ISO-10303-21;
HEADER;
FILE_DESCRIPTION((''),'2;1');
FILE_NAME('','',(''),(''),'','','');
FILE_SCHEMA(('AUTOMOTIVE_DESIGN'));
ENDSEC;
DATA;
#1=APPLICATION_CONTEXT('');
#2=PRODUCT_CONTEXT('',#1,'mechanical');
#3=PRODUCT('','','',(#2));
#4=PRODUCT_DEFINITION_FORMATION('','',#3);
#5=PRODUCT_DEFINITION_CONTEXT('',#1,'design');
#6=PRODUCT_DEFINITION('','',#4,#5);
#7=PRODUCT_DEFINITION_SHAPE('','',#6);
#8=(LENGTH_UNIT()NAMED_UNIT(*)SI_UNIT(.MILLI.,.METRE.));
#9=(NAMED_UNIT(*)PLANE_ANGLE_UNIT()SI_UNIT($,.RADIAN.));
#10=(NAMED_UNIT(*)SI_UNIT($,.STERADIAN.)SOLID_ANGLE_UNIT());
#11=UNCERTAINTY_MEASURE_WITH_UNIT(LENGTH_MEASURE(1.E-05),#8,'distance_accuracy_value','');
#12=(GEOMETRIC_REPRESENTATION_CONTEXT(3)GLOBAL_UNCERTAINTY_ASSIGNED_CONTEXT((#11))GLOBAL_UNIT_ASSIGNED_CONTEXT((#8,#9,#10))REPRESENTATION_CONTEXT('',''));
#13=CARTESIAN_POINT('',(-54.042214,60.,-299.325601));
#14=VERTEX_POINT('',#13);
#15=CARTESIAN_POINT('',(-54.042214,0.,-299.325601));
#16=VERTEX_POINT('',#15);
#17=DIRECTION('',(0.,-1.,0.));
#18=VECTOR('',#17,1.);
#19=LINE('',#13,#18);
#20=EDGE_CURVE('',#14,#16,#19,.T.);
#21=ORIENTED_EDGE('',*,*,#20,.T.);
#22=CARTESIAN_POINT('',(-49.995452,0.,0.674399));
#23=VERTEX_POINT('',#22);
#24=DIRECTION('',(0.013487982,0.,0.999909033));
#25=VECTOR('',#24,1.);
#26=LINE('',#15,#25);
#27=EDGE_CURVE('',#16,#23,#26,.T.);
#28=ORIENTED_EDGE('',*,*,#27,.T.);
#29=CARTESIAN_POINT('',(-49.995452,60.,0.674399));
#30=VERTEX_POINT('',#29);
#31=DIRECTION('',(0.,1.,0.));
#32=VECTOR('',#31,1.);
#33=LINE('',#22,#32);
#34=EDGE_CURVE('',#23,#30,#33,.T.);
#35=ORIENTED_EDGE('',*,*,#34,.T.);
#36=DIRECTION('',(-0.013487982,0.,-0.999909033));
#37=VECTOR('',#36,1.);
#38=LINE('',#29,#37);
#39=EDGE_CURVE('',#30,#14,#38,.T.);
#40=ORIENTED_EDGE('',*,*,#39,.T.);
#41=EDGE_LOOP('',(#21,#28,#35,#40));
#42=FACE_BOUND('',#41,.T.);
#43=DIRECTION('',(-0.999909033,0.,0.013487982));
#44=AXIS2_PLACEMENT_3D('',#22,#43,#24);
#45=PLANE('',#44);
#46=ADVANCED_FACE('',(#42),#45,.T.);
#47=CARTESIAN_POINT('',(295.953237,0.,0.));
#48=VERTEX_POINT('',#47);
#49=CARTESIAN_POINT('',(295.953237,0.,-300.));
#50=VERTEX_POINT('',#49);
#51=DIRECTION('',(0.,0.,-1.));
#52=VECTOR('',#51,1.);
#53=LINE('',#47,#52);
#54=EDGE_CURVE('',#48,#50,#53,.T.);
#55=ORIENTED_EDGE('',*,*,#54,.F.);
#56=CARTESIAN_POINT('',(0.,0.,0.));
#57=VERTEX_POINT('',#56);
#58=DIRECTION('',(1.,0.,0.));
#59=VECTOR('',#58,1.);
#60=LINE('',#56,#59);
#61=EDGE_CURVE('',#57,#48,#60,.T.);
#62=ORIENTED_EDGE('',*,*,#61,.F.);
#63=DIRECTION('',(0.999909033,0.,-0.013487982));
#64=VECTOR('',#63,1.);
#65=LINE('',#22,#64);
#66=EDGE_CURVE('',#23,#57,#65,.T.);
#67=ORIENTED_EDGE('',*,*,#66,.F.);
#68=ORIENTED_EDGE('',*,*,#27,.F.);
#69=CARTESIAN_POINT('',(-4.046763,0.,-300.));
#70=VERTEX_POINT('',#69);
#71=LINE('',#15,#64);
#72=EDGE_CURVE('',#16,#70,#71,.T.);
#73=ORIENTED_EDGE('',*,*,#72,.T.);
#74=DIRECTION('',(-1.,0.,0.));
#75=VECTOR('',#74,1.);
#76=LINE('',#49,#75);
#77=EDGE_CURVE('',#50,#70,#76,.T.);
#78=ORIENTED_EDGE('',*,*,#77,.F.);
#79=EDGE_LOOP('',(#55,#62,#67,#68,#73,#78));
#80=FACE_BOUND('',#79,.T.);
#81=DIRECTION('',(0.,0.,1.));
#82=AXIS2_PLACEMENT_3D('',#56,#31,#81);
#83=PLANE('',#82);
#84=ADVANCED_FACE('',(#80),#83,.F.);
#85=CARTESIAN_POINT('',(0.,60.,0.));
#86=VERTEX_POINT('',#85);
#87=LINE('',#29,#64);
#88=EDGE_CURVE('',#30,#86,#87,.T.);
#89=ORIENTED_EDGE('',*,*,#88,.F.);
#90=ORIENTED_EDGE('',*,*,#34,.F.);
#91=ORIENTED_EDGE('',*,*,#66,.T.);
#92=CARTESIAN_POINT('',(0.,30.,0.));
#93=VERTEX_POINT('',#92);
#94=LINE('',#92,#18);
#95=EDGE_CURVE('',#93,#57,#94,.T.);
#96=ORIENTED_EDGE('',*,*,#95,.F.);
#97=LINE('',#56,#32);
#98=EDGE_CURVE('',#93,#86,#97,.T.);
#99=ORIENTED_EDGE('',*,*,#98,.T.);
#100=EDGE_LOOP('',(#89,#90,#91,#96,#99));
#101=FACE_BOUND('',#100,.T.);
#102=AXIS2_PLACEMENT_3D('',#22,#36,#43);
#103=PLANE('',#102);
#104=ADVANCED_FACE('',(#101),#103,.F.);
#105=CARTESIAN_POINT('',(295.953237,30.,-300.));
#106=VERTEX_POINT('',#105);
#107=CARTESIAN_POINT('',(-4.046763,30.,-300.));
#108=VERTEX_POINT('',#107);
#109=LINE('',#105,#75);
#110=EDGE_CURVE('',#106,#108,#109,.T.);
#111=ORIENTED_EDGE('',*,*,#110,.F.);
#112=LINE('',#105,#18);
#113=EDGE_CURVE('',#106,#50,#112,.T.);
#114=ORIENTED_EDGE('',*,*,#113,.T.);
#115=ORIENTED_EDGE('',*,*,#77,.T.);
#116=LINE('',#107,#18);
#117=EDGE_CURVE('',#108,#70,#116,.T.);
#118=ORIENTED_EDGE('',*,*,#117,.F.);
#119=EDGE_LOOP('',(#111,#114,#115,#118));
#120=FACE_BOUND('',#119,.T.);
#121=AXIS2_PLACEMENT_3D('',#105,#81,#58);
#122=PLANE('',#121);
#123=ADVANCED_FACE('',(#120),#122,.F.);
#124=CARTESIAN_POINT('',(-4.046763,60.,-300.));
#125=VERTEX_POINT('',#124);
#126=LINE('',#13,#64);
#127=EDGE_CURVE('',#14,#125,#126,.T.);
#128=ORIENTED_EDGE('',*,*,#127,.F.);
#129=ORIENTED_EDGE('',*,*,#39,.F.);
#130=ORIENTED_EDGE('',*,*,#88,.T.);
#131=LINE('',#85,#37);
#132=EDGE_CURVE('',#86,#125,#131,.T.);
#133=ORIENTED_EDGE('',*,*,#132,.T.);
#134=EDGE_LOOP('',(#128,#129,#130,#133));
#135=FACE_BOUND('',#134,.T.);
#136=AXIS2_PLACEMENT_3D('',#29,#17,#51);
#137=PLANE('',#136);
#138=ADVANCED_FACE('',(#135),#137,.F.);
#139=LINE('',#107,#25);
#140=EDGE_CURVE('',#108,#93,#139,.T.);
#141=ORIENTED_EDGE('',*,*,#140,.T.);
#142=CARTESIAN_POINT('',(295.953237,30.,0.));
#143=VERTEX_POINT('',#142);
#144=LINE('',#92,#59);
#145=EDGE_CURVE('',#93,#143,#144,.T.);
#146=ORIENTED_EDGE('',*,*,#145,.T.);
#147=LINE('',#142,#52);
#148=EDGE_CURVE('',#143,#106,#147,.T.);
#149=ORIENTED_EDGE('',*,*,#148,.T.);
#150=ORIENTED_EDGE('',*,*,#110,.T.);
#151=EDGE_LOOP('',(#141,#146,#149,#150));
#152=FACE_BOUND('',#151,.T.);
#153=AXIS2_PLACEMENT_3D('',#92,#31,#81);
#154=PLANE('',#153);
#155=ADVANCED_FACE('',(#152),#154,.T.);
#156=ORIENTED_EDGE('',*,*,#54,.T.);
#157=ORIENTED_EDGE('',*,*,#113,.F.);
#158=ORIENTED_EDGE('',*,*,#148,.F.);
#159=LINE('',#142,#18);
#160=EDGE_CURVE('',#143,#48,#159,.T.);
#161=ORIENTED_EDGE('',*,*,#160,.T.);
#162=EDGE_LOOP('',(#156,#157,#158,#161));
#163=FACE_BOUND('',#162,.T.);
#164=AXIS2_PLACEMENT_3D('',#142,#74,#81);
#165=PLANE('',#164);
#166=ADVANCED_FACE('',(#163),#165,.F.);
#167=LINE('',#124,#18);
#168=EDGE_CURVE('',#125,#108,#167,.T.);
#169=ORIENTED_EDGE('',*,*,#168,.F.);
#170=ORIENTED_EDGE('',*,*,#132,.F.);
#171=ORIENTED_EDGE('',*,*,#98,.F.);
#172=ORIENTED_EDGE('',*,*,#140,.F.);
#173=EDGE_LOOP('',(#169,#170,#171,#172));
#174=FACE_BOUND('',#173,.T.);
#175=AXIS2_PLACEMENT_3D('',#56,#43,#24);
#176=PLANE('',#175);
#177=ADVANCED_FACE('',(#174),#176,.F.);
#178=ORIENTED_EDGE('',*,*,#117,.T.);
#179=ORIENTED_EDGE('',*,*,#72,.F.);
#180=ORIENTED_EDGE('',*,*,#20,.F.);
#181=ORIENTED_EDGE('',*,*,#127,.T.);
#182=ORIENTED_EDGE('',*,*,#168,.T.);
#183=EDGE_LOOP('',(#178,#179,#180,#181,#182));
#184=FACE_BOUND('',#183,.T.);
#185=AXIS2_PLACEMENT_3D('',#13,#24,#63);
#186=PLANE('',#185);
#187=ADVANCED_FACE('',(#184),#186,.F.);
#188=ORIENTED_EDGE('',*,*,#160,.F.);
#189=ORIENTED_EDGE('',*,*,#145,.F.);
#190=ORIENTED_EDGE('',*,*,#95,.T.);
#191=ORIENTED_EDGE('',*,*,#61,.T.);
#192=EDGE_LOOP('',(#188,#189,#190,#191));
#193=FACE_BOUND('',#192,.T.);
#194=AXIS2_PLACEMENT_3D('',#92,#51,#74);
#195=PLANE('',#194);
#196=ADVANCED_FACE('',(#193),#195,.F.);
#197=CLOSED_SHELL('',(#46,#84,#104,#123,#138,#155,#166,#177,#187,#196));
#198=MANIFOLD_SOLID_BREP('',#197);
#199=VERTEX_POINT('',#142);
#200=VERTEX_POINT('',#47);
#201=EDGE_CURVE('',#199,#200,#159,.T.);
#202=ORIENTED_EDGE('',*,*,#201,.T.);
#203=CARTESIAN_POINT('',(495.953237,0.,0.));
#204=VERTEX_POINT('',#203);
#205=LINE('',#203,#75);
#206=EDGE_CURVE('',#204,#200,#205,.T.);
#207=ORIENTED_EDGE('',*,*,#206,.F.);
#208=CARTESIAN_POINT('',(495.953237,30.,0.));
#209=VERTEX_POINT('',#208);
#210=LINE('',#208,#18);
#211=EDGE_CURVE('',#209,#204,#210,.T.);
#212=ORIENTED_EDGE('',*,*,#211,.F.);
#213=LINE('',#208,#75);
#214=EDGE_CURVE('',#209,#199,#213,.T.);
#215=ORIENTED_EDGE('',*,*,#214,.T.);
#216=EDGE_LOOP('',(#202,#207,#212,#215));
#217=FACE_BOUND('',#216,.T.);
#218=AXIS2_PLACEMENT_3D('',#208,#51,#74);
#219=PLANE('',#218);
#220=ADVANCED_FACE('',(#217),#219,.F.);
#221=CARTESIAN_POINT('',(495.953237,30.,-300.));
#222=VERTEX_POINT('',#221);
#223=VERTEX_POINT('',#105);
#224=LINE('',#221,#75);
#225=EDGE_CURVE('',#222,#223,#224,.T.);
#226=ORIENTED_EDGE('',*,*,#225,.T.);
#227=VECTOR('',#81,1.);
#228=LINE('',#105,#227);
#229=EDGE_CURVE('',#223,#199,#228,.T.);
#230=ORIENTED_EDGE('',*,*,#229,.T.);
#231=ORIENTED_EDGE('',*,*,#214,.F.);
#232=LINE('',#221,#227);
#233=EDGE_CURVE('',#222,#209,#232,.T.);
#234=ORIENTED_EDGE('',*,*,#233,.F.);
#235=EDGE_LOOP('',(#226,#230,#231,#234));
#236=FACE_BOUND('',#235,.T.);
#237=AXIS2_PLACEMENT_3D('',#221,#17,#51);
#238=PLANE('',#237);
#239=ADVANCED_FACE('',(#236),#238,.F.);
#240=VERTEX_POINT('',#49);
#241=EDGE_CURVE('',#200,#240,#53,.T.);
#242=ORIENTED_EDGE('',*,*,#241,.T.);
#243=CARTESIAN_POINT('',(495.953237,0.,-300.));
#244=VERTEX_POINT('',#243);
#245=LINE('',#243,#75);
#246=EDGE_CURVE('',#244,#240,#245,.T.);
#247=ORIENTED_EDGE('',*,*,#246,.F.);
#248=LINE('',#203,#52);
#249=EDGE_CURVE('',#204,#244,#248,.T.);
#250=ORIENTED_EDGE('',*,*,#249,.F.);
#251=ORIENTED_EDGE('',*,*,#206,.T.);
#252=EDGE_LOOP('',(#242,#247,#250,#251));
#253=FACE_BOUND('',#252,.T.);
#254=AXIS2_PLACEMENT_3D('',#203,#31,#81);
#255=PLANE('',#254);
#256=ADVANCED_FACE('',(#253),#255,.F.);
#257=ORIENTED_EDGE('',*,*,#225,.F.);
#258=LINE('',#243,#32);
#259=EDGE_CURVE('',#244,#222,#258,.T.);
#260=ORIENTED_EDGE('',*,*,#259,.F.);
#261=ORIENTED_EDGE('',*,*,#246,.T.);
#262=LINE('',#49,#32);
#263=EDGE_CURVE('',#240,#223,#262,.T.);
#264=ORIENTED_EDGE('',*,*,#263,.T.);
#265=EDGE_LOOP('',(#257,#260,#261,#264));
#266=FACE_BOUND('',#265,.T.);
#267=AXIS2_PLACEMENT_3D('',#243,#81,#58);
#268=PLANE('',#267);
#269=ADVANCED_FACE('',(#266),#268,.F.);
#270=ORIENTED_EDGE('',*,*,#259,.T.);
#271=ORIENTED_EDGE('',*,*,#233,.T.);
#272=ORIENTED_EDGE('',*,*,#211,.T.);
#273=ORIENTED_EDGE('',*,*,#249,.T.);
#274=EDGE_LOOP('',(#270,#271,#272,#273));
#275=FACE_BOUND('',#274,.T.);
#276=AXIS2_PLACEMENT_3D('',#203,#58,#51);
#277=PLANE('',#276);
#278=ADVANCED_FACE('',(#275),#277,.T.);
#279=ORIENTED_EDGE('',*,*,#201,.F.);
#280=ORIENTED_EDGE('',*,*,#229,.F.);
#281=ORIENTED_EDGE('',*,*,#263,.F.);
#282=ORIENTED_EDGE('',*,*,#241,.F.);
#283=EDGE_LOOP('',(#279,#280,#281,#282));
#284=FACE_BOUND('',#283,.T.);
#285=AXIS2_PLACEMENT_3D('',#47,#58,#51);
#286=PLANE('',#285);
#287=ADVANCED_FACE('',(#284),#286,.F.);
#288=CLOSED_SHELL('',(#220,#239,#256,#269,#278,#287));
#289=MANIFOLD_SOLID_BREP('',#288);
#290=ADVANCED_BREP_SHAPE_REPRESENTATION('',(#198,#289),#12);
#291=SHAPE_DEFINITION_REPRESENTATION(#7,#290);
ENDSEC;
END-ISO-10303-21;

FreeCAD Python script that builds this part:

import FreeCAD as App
import Part
import Sketcher
from FreeCAD import Vector


def add_polygon(sketch, points):
    """Adds a closed chain of lines whose ends are joined by coincident constraints."""
    first, n = sketch.GeometryCount, len(points)
    for a, b in zip(points, points[1:] + points[:1]):
        sketch.addGeometry(Part.LineSegment(App.Vector(*a, 0), App.Vector(*b, 0)), False)
    for i in range(n):
        sketch.addConstraint(Sketcher.Constraint("Coincident", first + i, 2, first + (i + 1) % n, 1))

doc = App.newDocument("Part")
body = doc.addObject("PartDesign::Body", "Body")

# Sketch on XZ plane
sketch1 = body.newObject("Sketcher::SketchObject", "Sketch")
sketch1.AttachmentSupport = (doc.getObject("XZ_Plane"), [""])
sketch1.MapMode = "FlatFace"
add_polygon(sketch1, [(0, 0), (295.953237, 0), (295.953237, -300), (-4.046763, -300)])  # lines 0-3
sketch1.addConstraint([
    Sketcher.Constraint("Horizontal", 0),
    Sketcher.Constraint("Vertical", 1),
    Sketcher.Constraint("Horizontal", 2),
    Sketcher.Constraint("Coincident", 3, 2, -1, 1),
    Sketcher.Constraint("Equal", 2, 1),
    Sketcher.Constraint("DistanceX", 2, 2, 2, 1, 300.0),
    Sketcher.Constraint("DistanceX", 0, 1, 0, 2, 295.953237),
])
pad1 = body.newObject("PartDesign::Pad", "Pad")
pad1.Profile = sketch1
pad1.Length = 30
pad1.Reversed = True

# Sketch on an angled plane
sketch2 = body.newObject("Sketcher::SketchObject", "Sketch001")
sketch2.Placement = App.Placement(Vector(0, 0, 0), App.Rotation(Vector(0.013487982, 0, 0.999909033), Vector(0, 1, 0), Vector(-0.999909033, 0, 0.013487982), "ZXY"))
add_polygon(sketch2, [(-300.027293, 60), (-300.027293, 0), (0, 0), (0, 60)])  # lines 0-3
sketch2.addConstraint([
    Sketcher.Constraint("Vertical", 0),
    Sketcher.Constraint("Horizontal", 1),
    Sketcher.Constraint("Vertical", 2),
    Sketcher.Constraint("Horizontal", 3),
    Sketcher.Constraint("Coincident", 1, 2, -1, 1),
    Sketcher.Constraint("DistanceY", 0, 2, 0, 1, 60.0),
    Sketcher.Constraint("DistanceX", 1, 1, 1, 2, 300.027293),
])
pad2 = body.newObject("PartDesign::Pad", "Pad001")
pad2.Profile = sketch2
pad2.Length = 50
body2 = doc.addObject("PartDesign::Body", "Body001")

# Sketch on YZ plane
sketch3 = body2.newObject("Sketcher::SketchObject", "Sketch002")
sketch3.AttachmentSupport = (doc.getObject("YZ_Plane001"), [""])
sketch3.MapMode = "FlatFace"
sketch3.AttachmentOffset = App.Placement(Vector(0, 0, 295.953237), App.Rotation())
add_polygon(sketch3, [(30, 0), (0, 0), (0, -300), (30, -300)])  # lines 0-3
sketch3.addConstraint([
    Sketcher.Constraint("Horizontal", 0),
    Sketcher.Constraint("Vertical", 1),
    Sketcher.Constraint("Horizontal", 2),
    Sketcher.Constraint("Vertical", 3),
    Sketcher.Constraint("Coincident", 0, 2, -1, 1),
    Sketcher.Constraint("DistanceX", 0, 2, 0, 1, 30.0),
    Sketcher.Constraint("DistanceY", 1, 2, 1, 1, 300.0),
])
pad3 = body2.newObject("PartDesign::Pad", "Pad002")
pad3.Profile = sketch3
pad3.Length = 200

doc.recompute()
